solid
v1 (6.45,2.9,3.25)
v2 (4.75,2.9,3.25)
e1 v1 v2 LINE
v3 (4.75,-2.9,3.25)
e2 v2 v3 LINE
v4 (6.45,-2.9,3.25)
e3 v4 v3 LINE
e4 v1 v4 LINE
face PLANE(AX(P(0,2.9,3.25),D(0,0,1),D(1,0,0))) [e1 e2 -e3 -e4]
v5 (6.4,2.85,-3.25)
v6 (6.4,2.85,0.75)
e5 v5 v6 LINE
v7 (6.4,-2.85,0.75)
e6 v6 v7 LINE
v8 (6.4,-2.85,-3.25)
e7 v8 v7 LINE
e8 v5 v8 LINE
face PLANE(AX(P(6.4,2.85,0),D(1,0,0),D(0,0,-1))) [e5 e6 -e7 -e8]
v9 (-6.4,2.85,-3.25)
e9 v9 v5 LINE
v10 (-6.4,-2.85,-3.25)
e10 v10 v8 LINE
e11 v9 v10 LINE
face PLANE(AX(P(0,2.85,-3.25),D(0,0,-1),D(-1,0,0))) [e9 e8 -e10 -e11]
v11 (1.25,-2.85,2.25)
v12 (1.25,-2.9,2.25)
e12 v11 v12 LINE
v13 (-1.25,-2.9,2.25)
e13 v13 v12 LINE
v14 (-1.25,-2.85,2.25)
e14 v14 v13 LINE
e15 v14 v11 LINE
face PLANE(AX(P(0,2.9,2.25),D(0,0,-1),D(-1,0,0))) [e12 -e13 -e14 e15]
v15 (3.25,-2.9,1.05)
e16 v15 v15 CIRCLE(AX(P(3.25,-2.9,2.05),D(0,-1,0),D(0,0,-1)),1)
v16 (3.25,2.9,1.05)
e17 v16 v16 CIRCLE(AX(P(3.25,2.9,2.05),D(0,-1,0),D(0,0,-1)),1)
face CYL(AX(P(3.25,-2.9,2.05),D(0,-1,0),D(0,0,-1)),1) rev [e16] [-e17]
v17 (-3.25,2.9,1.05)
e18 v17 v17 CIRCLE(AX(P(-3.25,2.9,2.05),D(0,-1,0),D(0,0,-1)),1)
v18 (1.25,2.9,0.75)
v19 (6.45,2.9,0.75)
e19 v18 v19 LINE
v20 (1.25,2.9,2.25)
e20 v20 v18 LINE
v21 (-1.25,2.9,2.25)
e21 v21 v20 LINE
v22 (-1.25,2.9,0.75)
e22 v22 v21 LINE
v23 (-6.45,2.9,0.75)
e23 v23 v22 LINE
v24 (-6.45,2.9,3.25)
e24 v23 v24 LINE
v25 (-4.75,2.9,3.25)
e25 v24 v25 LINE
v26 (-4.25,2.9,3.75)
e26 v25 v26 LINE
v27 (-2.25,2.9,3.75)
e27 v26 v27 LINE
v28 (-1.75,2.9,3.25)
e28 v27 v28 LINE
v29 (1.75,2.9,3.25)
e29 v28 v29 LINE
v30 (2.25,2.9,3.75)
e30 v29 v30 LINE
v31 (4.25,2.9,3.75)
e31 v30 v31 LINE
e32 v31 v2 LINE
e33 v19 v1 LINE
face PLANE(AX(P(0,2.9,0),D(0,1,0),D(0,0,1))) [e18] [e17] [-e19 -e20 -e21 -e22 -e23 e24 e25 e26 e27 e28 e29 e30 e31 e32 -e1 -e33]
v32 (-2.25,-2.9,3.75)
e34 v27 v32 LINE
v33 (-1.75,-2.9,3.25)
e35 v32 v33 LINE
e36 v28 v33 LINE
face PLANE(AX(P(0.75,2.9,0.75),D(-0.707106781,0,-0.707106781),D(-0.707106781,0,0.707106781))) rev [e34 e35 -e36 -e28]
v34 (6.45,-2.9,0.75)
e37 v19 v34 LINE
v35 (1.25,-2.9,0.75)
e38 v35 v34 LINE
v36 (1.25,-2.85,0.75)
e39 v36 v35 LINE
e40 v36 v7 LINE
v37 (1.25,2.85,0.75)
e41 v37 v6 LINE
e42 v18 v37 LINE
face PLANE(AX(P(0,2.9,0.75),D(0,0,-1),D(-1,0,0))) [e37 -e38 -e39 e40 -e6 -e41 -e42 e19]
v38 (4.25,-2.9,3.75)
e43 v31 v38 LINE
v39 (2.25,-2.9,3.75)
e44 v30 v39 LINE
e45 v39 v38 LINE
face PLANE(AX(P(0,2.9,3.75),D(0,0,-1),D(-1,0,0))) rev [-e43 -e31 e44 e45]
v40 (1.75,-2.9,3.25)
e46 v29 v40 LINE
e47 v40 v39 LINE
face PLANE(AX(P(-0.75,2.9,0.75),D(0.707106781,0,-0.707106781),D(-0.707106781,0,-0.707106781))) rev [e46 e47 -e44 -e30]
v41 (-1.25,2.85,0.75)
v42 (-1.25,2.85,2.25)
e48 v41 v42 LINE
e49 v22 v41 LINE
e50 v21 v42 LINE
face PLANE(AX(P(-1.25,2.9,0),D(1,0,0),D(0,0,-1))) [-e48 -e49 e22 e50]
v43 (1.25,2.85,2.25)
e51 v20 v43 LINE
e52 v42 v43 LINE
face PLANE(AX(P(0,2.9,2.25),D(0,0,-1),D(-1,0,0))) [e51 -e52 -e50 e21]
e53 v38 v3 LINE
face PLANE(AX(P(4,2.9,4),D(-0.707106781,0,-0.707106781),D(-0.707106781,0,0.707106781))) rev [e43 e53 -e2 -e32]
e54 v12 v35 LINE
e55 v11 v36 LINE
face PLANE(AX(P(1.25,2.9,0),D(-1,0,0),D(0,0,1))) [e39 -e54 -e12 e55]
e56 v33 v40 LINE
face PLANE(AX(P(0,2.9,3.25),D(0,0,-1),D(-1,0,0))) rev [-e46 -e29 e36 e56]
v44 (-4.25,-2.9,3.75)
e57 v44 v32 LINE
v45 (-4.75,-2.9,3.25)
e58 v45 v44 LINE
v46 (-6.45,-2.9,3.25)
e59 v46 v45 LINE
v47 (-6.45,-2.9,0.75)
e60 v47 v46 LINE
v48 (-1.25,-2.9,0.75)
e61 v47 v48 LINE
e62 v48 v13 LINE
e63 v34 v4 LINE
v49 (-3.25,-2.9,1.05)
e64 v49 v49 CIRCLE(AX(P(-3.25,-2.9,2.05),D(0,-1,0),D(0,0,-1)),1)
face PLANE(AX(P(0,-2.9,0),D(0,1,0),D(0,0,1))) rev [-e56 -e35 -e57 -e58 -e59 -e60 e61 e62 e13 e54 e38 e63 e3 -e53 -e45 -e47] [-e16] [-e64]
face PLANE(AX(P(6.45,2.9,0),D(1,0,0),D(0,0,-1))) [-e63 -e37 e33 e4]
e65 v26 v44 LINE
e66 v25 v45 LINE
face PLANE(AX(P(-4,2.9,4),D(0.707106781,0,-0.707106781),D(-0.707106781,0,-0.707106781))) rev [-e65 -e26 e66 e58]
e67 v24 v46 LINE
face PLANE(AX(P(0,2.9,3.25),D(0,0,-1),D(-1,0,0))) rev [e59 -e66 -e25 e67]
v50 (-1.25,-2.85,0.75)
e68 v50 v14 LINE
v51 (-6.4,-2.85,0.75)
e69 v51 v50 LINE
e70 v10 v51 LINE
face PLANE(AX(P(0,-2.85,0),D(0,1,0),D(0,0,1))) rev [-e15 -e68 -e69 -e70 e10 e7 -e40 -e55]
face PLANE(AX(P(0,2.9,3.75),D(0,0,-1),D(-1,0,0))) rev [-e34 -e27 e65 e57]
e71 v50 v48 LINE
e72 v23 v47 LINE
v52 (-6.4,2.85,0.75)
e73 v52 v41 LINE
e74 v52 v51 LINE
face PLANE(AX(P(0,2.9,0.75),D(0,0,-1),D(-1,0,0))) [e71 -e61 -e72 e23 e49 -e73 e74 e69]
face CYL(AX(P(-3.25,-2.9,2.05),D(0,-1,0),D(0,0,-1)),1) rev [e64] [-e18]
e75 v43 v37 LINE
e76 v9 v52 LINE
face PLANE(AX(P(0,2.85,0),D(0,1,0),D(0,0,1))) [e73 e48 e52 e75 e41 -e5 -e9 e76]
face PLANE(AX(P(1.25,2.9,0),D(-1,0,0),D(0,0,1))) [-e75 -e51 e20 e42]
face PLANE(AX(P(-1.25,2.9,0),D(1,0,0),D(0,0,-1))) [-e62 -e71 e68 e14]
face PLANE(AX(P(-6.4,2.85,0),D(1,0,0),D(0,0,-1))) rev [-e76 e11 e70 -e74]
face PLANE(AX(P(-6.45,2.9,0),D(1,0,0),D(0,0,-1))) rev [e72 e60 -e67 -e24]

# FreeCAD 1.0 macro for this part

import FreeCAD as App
import Part
import Sketcher

V = App.Vector
Q = App.Units.Quantity

doc = App.newDocument("Part")
body = doc.addObject("PartDesign::Body", "Body")

# Sketch on XZ plane
sketch1 = body.newObject("Sketcher::SketchObject", "Sketch")
sketch1.AttachmentSupport = (doc.getObject("XZ_Plane"), [""])
sketch1.MapMode = "FlatFace"
sketch1.addGeometry([
    Part.LineSegment(V(-6.4, -3.25, 0), V(-6.4, 0.75, 0)),  # 0
    Part.LineSegment(V(-6.4, 0.75, 0), V(-1.25, 0.75, 0)),  # 1
    Part.LineSegment(V(-1.25, 0.75, 0), V(-1.25, 2.25, 0)),  # 2
    Part.LineSegment(V(-1.25, 2.25, 0), V(1.25, 2.25, 0)),  # 3
    Part.LineSegment(V(1.25, 2.25, 0), V(1.25, 0.75, 0)),  # 4
    Part.LineSegment(V(1.25, 0.75, 0), V(6.4, 0.75, 0)),  # 5
    Part.LineSegment(V(6.4, 0.75, 0), V(6.4, -3.25, 0)),  # 6
    Part.LineSegment(V(6.4, -3.25, 0), V(-6.4, -3.25, 0)),  # 7
], False)
sketch1.addConstraint([
    Sketcher.Constraint("Coincident", 0, 2, 1, 1),
    Sketcher.Constraint("Coincident", 1, 2, 2, 1),
    Sketcher.Constraint("Coincident", 2, 2, 3, 1),
    Sketcher.Constraint("Coincident", 3, 2, 4, 1),
    Sketcher.Constraint("Coincident", 4, 2, 5, 1),
    Sketcher.Constraint("Coincident", 5, 2, 6, 1),
    Sketcher.Constraint("Coincident", 6, 2, 7, 1),
    Sketcher.Constraint("Coincident", 7, 2, 0, 1),
    Sketcher.Constraint("Vertical", 0),
    Sketcher.Constraint("Horizontal", 1),
    Sketcher.Constraint("Vertical", 2),
    Sketcher.Constraint("Horizontal", 3),
    Sketcher.Constraint("Vertical", 4),
    Sketcher.Constraint("Horizontal", 5),
    Sketcher.Constraint("Vertical", 6),
    Sketcher.Constraint("Horizontal", 7),
    Sketcher.Constraint("Symmetric", 1, 2, 4, 2, -2),
    Sketcher.Constraint("Equal", 1, 5),
    Sketcher.Constraint("DistanceY", 0, 1, 0, 2, Q("4 mm")),
    Sketcher.Constraint("DistanceX", 3, 1, 3, 2, Q("2.5 mm")),
    Sketcher.Constraint("DistanceX", 7, 2, 7, 1, Q("12.8 mm")),
    Sketcher.Constraint("DistanceY", 2, 1, 2, 2, Q("1.5 mm")),
    Sketcher.Constraint("DistanceY", -1, 1, 0, 2, Q("0.75 mm")),
])
pad1 = body.newObject("PartDesign::Pad", "Pad")
pad1.Profile = sketch1
pad1.Length = 5.7
pad1.Midplane = True

# Sketch on XZ plane
sketch2 = body.newObject("Sketcher::SketchObject", "Sketch001")
sketch2.AttachmentSupport = (doc.getObject("XZ_Plane"), [""])
sketch2.MapMode = "FlatFace"
sketch2.addGeometry([
    Part.LineSegment(V(-1.25, 0.75, 0), V(-6.45, 0.75, 0)),  # 0
    Part.LineSegment(V(-6.45, 0.75, 0), V(-6.45, 3.25, 0)),  # 1
    Part.LineSegment(V(-6.45, 3.25, 0), V(-4.75, 3.25, 0)),  # 2
    Part.LineSegment(V(-4.75, 3.25, 0), V(-4.25, 3.75, 0)),  # 3
    Part.LineSegment(V(-4.25, 3.75, 0), V(-2.25, 3.75, 0)),  # 4
    Part.LineSegment(V(-2.25, 3.75, 0), V(-1.75, 3.25, 0)),  # 5
    Part.LineSegment(V(-1.75, 3.25, 0), V(1.75, 3.25, 0)),  # 6
    Part.LineSegment(V(1.75, 3.25, 0), V(2.25, 3.75, 0)),  # 7
    Part.LineSegment(V(2.25, 3.75, 0), V(4.25, 3.75, 0)),  # 8
    Part.LineSegment(V(4.25, 3.75, 0), V(4.75, 3.25, 0)),  # 9
    Part.LineSegment(V(4.75, 3.25, 0), V(6.45, 3.25, 0)),  # 10
    Part.LineSegment(V(6.45, 3.25, 0), V(6.45, 0.75, 0)),  # 11
    Part.LineSegment(V(6.45, 0.75, 0), V(1.25, 0.75, 0)),  # 12
    Part.LineSegment(V(1.25, 0.75, 0), V(1.25, 2.25, 0)),  # 13
    Part.LineSegment(V(1.25, 2.25, 0), V(-1.25, 2.25, 0)),  # 14
    Part.LineSegment(V(-1.25, 2.25, 0), V(-1.25, 0.75, 0)),  # 15
], False)
sketch2.addConstraint([
    Sketcher.Constraint("Coincident", 0, 2, 1, 1),
    Sketcher.Constraint("Coincident", 1, 2, 2, 1),
    Sketcher.Constraint("Coincident", 2, 2, 3, 1),
    Sketcher.Constraint("Coincident", 3, 2, 4, 1),
    Sketcher.Constraint("Coincident", 4, 2, 5, 1),
    Sketcher.Constraint("Coincident", 5, 2, 6, 1),
    Sketcher.Constraint("Coincident", 6, 2, 7, 1),
    Sketcher.Constraint("Coincident", 7, 2, 8, 1),
    Sketcher.Constraint("Coincident", 8, 2, 9, 1),
    Sketcher.Constraint("Coincident", 9, 2, 10, 1),
    Sketcher.Constraint("Coincident", 10, 2, 11, 1),
    Sketcher.Constraint("Coincident", 11, 2, 12, 1),
    Sketcher.Constraint("Coincident", 12, 2, 13, 1),
    Sketcher.Constraint("Coincident", 13, 2, 14, 1),
    Sketcher.Constraint("Coincident", 14, 2, 15, 1),
    Sketcher.Constraint("Coincident", 15, 2, 0, 1),
    Sketcher.Constraint("Horizontal", 0),
    Sketcher.Constraint("Vertical", 1),
    Sketcher.Constraint("Horizontal", 2),
    Sketcher.Constraint("Horizontal", 4),
    Sketcher.Constraint("Horizontal", 6),
    Sketcher.Constraint("Horizontal", 8),
    Sketcher.Constraint("Horizontal", 10),
    Sketcher.Constraint("Vertical", 11),
    Sketcher.Constraint("Horizontal", 12),
    Sketcher.Constraint("Vertical", 13),
    Sketcher.Constraint("Horizontal", 14),
    Sketcher.Constraint("Vertical", 15),
    Sketcher.Constraint("Symmetric", 4, 2, 7, 2, -2),
    Sketcher.Constraint("Symmetric", 2, 2, 9, 2, -2),
    Sketcher.Constraint("Symmetric", 0, 2, 11, 2, -2),
    Sketcher.Constraint("Perpendicular", 3, 5),
    Sketcher.Constraint("Perpendicular", 5, 7),
    Sketcher.Constraint("Perpendicular", 7, 9),
    Sketcher.Constraint("Horizontal", 2, 2, 5, 2),
    Sketcher.Constraint("Equal", 4, 8),
    Sketcher.Constraint("Equal", 0, 12),
    Sketcher.Constraint("Equal", 14, 1),
    Sketcher.Constraint("DistanceX", 4, 1, 4, 2, Q("2 mm")),
    Sketcher.Constraint("DistanceX", 0, 2, 0, 1, Q("5.2 mm")),
    Sketcher.Constraint("DistanceX", 2, 1, 2, 2, Q("1.7 mm")),
    Sketcher.Constraint("DistanceX", 6, 1, 6, 2, Q("3.5 mm")),
    Sketcher.Constraint("DistanceX", 14, 2, 14, 1, Q("2.5 mm")),
    Sketcher.Constraint("DistanceY", 13, 1, 13, 2, Q("1.5 mm")),
    Sketcher.Constraint("DistanceY", -1, 1, 0, 2, Q("0.75 mm")),
])
pad2 = body.newObject("PartDesign::Pad", "Pad001")
pad2.Profile = sketch2
pad2.Length = 5.8
pad2.Midplane = True

# Sketch on XZ plane
sketch3 = body.newObject("Sketcher::SketchObject", "Sketch002")
sketch3.AttachmentSupport = (doc.getObject("XZ_Plane"), [""])
sketch3.MapMode = "FlatFace"
sketch3.AttachmentOffset = App.Placement(V(0, 0, 2.9), App.Rotation())
sketch3.addGeometry([
    Part.Circle(V(-3.25, 2.05, 0), V(0, 0, 1), 1),
    Part.Circle(V(3.25, 2.05, 0), V(0, 0, 1), 1),
], False)
sketch3.addConstraint([
    Sketcher.Constraint("Equal", 0, 1),
    Sketcher.Constraint("Symmetric", 0, 3, 1, 3, -2),
    Sketcher.Constraint("Diameter", 0, Q("2 mm")),
    Sketcher.Constraint("DistanceX", 0, 3, 1, 3, Q("6.5 mm")),
    Sketcher.Constraint("DistanceY", -1, 1, 0, 3, Q("2.05 mm")),
])
doc.recompute()
hole = body.newObject("PartDesign::Hole", "Hole")
hole.Profile = sketch3
hole.ThreadType = "None"
hole.Diameter = 2
hole.DepthType = "ThroughAll"

doc.recompute()
